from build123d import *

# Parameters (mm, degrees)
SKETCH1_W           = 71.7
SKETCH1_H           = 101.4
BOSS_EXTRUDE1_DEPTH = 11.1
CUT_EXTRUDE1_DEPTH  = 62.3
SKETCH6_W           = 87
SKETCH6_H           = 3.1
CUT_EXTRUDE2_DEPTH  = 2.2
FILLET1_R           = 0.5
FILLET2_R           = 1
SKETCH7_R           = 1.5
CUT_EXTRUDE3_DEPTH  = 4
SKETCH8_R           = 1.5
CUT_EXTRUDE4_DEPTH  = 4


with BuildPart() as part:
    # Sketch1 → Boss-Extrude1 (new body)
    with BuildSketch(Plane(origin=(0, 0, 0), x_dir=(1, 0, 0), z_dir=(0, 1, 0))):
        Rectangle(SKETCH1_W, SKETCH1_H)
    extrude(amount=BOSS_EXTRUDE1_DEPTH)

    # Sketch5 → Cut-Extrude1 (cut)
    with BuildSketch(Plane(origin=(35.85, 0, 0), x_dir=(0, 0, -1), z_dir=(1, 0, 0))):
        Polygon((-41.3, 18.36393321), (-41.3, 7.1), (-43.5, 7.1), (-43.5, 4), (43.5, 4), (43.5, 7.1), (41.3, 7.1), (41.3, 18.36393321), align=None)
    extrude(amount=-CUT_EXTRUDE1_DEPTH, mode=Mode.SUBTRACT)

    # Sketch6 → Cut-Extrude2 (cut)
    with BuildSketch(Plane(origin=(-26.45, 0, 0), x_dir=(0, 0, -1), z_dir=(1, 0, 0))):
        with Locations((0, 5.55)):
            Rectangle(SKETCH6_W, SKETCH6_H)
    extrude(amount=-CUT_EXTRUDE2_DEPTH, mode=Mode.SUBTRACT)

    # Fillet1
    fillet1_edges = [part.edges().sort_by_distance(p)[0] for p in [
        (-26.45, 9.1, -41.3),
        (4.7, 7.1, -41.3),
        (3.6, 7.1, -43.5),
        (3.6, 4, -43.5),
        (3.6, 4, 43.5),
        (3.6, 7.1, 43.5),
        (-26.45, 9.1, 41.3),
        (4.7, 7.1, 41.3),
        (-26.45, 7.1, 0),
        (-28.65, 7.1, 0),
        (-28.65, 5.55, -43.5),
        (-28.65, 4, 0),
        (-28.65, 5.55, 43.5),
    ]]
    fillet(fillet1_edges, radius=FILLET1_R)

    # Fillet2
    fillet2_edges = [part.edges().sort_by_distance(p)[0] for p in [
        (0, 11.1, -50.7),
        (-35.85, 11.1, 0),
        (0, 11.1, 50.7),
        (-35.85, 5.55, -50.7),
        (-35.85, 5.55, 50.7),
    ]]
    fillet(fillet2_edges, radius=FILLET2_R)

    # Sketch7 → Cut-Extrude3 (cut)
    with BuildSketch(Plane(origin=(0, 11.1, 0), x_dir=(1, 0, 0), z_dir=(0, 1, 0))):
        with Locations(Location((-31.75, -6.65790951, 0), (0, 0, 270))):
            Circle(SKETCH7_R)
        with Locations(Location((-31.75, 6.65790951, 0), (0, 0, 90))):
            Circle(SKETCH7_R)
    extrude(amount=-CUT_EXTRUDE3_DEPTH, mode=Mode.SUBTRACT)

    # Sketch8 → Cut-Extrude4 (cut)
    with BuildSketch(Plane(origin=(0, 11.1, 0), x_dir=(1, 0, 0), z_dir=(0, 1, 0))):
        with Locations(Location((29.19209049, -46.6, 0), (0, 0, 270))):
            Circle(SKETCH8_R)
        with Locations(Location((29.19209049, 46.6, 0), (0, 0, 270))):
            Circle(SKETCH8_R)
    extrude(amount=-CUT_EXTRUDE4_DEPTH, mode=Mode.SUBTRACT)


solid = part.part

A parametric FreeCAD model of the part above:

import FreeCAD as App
import Part
import Sketcher
from FreeCAD import Vector
Q = App.Units.Quantity


def edges_at(feature, points):
    """Names of the edges that pass closest to the given points."""
    edges = feature.Shape.Edges
    near = lambda p: min(range(len(edges)), key=lambda i: edges[i].distToShape(Part.Vertex(*p))[0])
    return sorted({f"Edge{near(p) + 1}" for p in points})

doc = App.newDocument("Part")
params = doc.addObject("Spreadsheet::Sheet", "Params")
for row, (alias, value) in enumerate([
    ("sketch1_width", "71.7 mm"),
    ("sketch1_height", "101.4 mm"),
    ("pad1_length", "11.1 mm"),
    ("sketch2_height", "87 mm"),
    ("sketch2_width", "3.1 mm"),
    ("sketch2_height2", "2.2 mm"),
    ("pocket1_length", "62.3 mm"),
    ("sketch3_height", "87 mm"),
    ("sketch3_width", "3.1 mm"),
    ("pocket2_length", "2.2 mm"),
    ("fillet_radius", "0.5 mm"),
    ("fillet2_radius", "1 mm"),
    ("sketch4_diameter", "3 mm"),
    ("pocket3_length", "4 mm"),
    ("sketch5_diameter", "3 mm"),
    ("pocket4_length", "4 mm"),
], start=1):
    params.set(f"A{row}", alias)
    params.set(f"B{row}", "=" + value)
    params.setAlias(f"B{row}", alias)

body = doc.addObject("PartDesign::Body", "Body")

sketch1 = body.newObject("Sketcher::SketchObject", "Sketch")
sketch1.AttachmentSupport = (doc.getObject("XZ_Plane"), [""])
sketch1.MapMode = "FlatFace"
sketch1.addGeometry(Part.LineSegment(Vector(-36, -51, 0), Vector(-36, 51, 0)), False)
sketch1.addGeometry(Part.LineSegment(Vector(-36, 51, 0), Vector(36, 51, 0)), False)
sketch1.addGeometry(Part.LineSegment(Vector(36, 51, 0), Vector(36, -51, 0)), False)
sketch1.addGeometry(Part.LineSegment(Vector(36, -51, 0), Vector(-36, -51, 0)), False)
sketch1.addConstraint(Sketcher.Constraint("Coincident", 0, 2, 1, 1))
sketch1.addConstraint(Sketcher.Constraint("Coincident", 1, 2, 2, 1))
sketch1.addConstraint(Sketcher.Constraint("Coincident", 2, 2, 3, 1))
sketch1.addConstraint(Sketcher.Constraint("Coincident", 3, 2, 0, 1))
sketch1.addConstraint(Sketcher.Constraint("Vertical", 0))
sketch1.addConstraint(Sketcher.Constraint("Horizontal", 1))
sketch1.addConstraint(Sketcher.Constraint("Vertical", 2))
sketch1.addConstraint(Sketcher.Constraint("Horizontal", 3))
sketch1.addConstraint(Sketcher.Constraint("Symmetric", 0, 2, 2, 2, -1, 1))
sketch1.addConstraint(Sketcher.Constraint("DistanceX", 1, 1, 1, 2, Q("71.7 mm")))
sketch1.addConstraint(Sketcher.Constraint("DistanceY", 0, 1, 0, 2, Q("101.4 mm")))
sketch1.setExpression("Constraints[9]", "Params.sketch1_width")
sketch1.setExpression("Constraints[10]", "Params.sketch1_height")
pad1 = body.newObject("PartDesign::Pad", "Pad")
pad1.Profile = sketch1
pad1.setExpression("Length", "Params.pad1_length")
pad1.Reversed = True

sketch2 = body.newObject("Sketcher::SketchObject", "Sketch001")
sketch2.AttachmentSupport = (doc.getObject("YZ_Plane"), [""])
sketch2.MapMode = "FlatFace"
sketch2.AttachmentOffset = App.Placement(Vector(0, 0, 35.85), App.Rotation())
sketch2.addGeometry(Part.LineSegment(Vector(18.4, 41.3, 0), Vector(7.1, 41.3, 0)), False)
sketch2.addGeometry(Part.LineSegment(Vector(7.1, 41.3, 0), Vector(7.1, 43.5, 0)), False)
sketch2.addGeometry(Part.LineSegment(Vector(7.1, 43.5, 0), Vector(4, 43.5, 0)), False)
sketch2.addGeometry(Part.LineSegment(Vector(4, 43.5, 0), Vector(4, -43.5, 0)), False)
sketch2.addGeometry(Part.LineSegment(Vector(4, -43.5, 0), Vector(7.1, -43.5, 0)), False)
sketch2.addGeometry(Part.LineSegment(Vector(7.1, -43.5, 0), Vector(7.1, -41.3, 0)), False)
sketch2.addGeometry(Part.LineSegment(Vector(7.1, -41.3, 0), Vector(18.4, -41.3, 0)), False)
sketch2.addGeometry(Part.LineSegment(Vector(18.4, -41.3, 0), Vector(18.4, 41.3, 0)), False)
sketch2.addConstraint(Sketcher.Constraint("Coincident", 0, 2, 1, 1))
sketch2.addConstraint(Sketcher.Constraint("Coincident", 1, 2, 2, 1))
sketch2.addConstraint(Sketcher.Constraint("Coincident", 2, 2, 3, 1))
sketch2.addConstraint(Sketcher.Constraint("Coincident", 3, 2, 4, 1))
sketch2.addConstraint(Sketcher.Constraint("Coincident", 4, 2, 5, 1))
sketch2.addConstraint(Sketcher.Constraint("Coincident", 5, 2, 6, 1))
sketch2.addConstraint(Sketcher.Constraint("Coincident", 6, 2, 7, 1))
sketch2.addConstraint(Sketcher.Constraint("Coincident", 7, 2, 0, 1))
sketch2.addConstraint(Sketcher.Constraint("Horizontal", 0))
sketch2.addConstraint(Sketcher.Constraint("Vertical", 1))
sketch2.addConstraint(Sketcher.Constraint("Horizontal", 2))
sketch2.addConstraint(Sketcher.Constraint("Vertical", 3))
sketch2.addConstraint(Sketcher.Constraint("Horizontal", 4))
sketch2.addConstraint(Sketcher.Constraint("Vertical", 5))
sketch2.addConstraint(Sketcher.Constraint("Horizontal", 6))
sketch2.addConstraint(Sketcher.Constraint("Vertical", 7))
sketch2.addConstraint(Sketcher.Constraint("Symmetric", 1, 2, 4, 2, -1))
sketch2.addConstraint(Sketcher.Constraint("Equal", 1, 5))
sketch2.addConstraint(Sketcher.Constraint("DistanceY", 3, 2, 3, 1, Q("87 mm")))
sketch2.addConstraint(Sketcher.Constraint("DistanceX", 2, 2, 2, 1, Q("3.1 mm")))
sketch2.addConstraint(Sketcher.Constraint("DistanceY", 1, 1, 1, 2, Q("2.2 mm")))
sketch2.addConstraint(Sketcher.Constraint("DistanceX", -1, 1, 2, 2, Q("4 mm")))
sketch2.addConstraint(Sketcher.Constraint("DistanceX", 0, 2, 0, 1, Q("11.263933 mm")))
sketch2.setExpression("Constraints[18]", "Params.sketch2_height")
sketch2.setExpression("Constraints[19]", "Params.sketch2_width")
sketch2.setExpression("Constraints[20]", "Params.sketch2_height2")
pocket1 = body.newObject("PartDesign::Pocket", "Pocket")
pocket1.Profile = sketch2
pocket1.setExpression("Length", "Params.pocket1_length")

sketch3 = body.newObject("Sketcher::SketchObject", "Sketch002")
sketch3.AttachmentSupport = (doc.getObject("YZ_Plane"), [""])
sketch3.MapMode = "FlatFace"
sketch3.AttachmentOffset = App.Placement(Vector(0, 0, -26.45), App.Rotation())
sketch3.addGeometry(Part.LineSegment(Vector(7.1, 43.5, 0), Vector(4, 43.5, 0)), False)
sketch3.addGeometry(Part.LineSegment(Vector(4, 43.5, 0), Vector(4, -43.5, 0)), False)
sketch3.addGeometry(Part.LineSegment(Vector(4, -43.5, 0), Vector(7.1, -43.5, 0)), False)
sketch3.addGeometry(Part.LineSegment(Vector(7.1, -43.5, 0), Vector(7.1, 43.5, 0)), False)
sketch3.addConstraint(Sketcher.Constraint("Coincident", 0, 2, 1, 1))
sketch3.addConstraint(Sketcher.Constraint("Coincident", 1, 2, 2, 1))
sketch3.addConstraint(Sketcher.Constraint("Coincident", 2, 2, 3, 1))
sketch3.addConstraint(Sketcher.Constraint("Coincident", 3, 2, 0, 1))
sketch3.addConstraint(Sketcher.Constraint("Horizontal", 0))
sketch3.addConstraint(Sketcher.Constraint("Vertical", 1))
sketch3.addConstraint(Sketcher.Constraint("Horizontal", 2))
sketch3.addConstraint(Sketcher.Constraint("Vertical", 3))
sketch3.addConstraint(Sketcher.Constraint("DistanceY", 1, 2, 1, 1, Q("87 mm")))
sketch3.addConstraint(Sketcher.Constraint("DistanceX", 0, 2, 0, 1, Q("3.1 mm")))
sketch3.addConstraint(Sketcher.Constraint("DistanceX", -1, 1, 0, 2, Q("4 mm")))
sketch3.addConstraint(Sketcher.Constraint("DistanceY", -1, 1, 0, 2, Q("43.5 mm")))
sketch3.setExpression("Constraints[8]", "Params.sketch3_height")
sketch3.setExpression("Constraints[9]", "Params.sketch3_width")
pocket2 = body.newObject("PartDesign::Pocket", "Pocket001")
pocket2.Profile = sketch3
pocket2.setExpression("Length", "Params.pocket2_length")
doc.recompute()

fillet = body.newObject("PartDesign::Fillet", "Fillet")
fillet.Base = (pocket2, edges_at(pocket2, [
    (-26.45, 9.1, -41.3),
    (4.7, 7.1, -41.3),
    (3.6, 7.1, -43.5),
    (3.6, 4, -43.5),
    (3.6, 4, 43.5),
    (3.6, 7.1, 43.5),
    (-26.45, 9.1, 41.3),
    (4.7, 7.1, 41.3),
    (-26.45, 7.1, 0),
    (-28.65, 7.1, 0),
    (-28.65, 5.55, -43.5),
    (-28.65, 4, 0),
    (-28.65, 5.55, 43.5),
]))
fillet.setExpression("Radius", "Params.fillet_radius")
doc.recompute()

fillet2 = body.newObject("PartDesign::Fillet", "Fillet001")
fillet2.Base = (fillet, edges_at(fillet, [
    (0, 11.1, -50.7),
    (-35.85, 11.1, 0),
    (0, 11.1, 50.7),
    (-35.85, 5.55, -50.7),
    (-35.85, 5.55, 50.7),
]))
fillet2.setExpression("Radius", "Params.fillet2_radius")

sketch4 = body.newObject("Sketcher::SketchObject", "Sketch003")
sketch4.AttachmentSupport = (doc.getObject("XZ_Plane"), [""])
sketch4.MapMode = "FlatFace"
sketch4.AttachmentOffset = App.Placement(Vector(0, 0, -11.1), App.Rotation())
sketch4.addGeometry(Part.Circle(Vector(-31.8, 6.7, 0), Vector(0, 0, 1), 1.5), False)
sketch4.addGeometry(Part.Circle(Vector(-31.8, -6.7, 0), Vector(0, 0, 1), 1.5), False)
sketch4.addConstraint(Sketcher.Constraint("Equal", 0, 1))
sketch4.addConstraint(Sketcher.Constraint("Symmetric", 0, 3, 1, 3, -1))
sketch4.addConstraint(Sketcher.Constraint("Diameter", 0, Q("3 mm")))
sketch4.addConstraint(Sketcher.Constraint("DistanceX", 0, 3, -1, 1, Q("31.75 mm")))
sketch4.addConstraint(Sketcher.Constraint("DistanceY", -1, 1, 0, 3, Q("6.65791 mm")))
sketch4.setExpression("Constraints[2]", "Params.sketch4_diameter")
pocket3 = body.newObject("PartDesign::Pocket", "Pocket002")
pocket3.Profile = sketch4
pocket3.setExpression("Length", "Params.pocket3_length")
pocket3.Reversed = True

sketch5 = body.newObject("Sketcher::SketchObject", "Sketch004")
sketch5.AttachmentSupport = (doc.getObject("XZ_Plane"), [""])
sketch5.MapMode = "FlatFace"
sketch5.AttachmentOffset = App.Placement(Vector(0, 0, -11.1), App.Rotation())
sketch5.addGeometry(Part.Circle(Vector(29.2, 46.6, 0), Vector(0, 0, 1), 1.5), False)
sketch5.addGeometry(Part.Circle(Vector(29.2, -46.6, 0), Vector(0, 0, 1), 1.5), False)
sketch5.addConstraint(Sketcher.Constraint("Equal", 0, 1))
sketch5.addConstraint(Sketcher.Constraint("Symmetric", 0, 3, 1, 3, -1))
sketch5.addConstraint(Sketcher.Constraint("Diameter", 0, Q("3 mm")))
sketch5.addConstraint(Sketcher.Constraint("DistanceY", -1, 1, 0, 3, Q("46.6 mm")))
sketch5.addConstraint(Sketcher.Constraint("DistanceX", -1, 1, 0, 3, Q("29.19209 mm")))
sketch5.setExpression("Constraints[2]", "Params.sketch5_diameter")
pocket4 = body.newObject("PartDesign::Pocket", "Pocket003")
pocket4.Profile = sketch5
pocket4.setExpression("Length", "Params.pocket4_length")
pocket4.Reversed = True

doc.recompute()
